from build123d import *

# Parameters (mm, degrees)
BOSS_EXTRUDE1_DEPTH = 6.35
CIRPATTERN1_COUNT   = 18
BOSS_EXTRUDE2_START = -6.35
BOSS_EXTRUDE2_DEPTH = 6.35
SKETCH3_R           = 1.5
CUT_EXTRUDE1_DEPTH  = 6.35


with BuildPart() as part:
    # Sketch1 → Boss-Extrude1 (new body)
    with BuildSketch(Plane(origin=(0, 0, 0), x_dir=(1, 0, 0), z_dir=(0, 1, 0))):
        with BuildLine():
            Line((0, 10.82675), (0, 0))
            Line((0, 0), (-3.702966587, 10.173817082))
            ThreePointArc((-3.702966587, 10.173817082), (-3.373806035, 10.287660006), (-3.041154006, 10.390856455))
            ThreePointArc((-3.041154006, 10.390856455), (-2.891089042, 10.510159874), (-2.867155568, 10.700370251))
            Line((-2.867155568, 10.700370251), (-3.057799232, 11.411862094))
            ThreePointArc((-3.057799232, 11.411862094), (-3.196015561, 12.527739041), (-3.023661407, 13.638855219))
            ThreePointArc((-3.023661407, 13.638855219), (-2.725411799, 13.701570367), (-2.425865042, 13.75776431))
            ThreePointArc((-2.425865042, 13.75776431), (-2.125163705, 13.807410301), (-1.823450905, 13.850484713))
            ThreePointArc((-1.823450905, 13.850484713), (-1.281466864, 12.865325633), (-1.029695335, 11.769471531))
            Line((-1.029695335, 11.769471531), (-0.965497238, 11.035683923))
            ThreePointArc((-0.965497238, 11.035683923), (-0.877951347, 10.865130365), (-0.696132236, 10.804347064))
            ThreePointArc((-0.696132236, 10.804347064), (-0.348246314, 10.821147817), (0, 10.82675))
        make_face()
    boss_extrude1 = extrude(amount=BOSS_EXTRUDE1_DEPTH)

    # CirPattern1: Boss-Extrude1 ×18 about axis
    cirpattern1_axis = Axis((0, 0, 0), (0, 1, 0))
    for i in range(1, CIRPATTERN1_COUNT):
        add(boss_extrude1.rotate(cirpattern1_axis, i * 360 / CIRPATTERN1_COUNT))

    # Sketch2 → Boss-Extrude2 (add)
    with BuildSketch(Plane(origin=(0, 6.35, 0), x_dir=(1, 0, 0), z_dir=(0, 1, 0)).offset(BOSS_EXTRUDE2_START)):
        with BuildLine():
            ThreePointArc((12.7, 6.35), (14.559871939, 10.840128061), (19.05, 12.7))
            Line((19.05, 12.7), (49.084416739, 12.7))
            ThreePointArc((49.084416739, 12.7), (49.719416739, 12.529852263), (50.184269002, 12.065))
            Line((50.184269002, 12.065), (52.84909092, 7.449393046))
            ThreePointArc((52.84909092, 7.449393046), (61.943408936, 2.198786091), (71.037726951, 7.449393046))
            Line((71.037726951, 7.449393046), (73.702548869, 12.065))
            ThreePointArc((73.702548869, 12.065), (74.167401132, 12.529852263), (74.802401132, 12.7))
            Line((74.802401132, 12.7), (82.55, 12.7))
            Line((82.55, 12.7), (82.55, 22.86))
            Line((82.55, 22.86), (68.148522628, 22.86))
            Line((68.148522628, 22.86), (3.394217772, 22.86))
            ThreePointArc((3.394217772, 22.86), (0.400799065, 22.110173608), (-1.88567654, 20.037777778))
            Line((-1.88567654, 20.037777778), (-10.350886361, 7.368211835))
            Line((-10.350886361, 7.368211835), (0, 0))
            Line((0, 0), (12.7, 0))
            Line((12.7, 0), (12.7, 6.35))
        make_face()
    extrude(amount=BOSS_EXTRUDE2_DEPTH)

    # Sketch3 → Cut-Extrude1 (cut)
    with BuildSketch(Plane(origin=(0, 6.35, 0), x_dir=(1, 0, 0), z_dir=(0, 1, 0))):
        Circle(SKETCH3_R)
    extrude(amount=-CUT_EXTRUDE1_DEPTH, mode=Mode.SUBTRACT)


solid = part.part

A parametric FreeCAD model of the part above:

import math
import FreeCAD as App
import Part
import Sketcher

V = App.Vector
Q = App.Units.Quantity

doc = App.newDocument("Part")
body = doc.addObject("PartDesign::Body", "Body")

sketch1 = body.newObject("Sketcher::SketchObject", "Sketch")
sketch1.AttachmentSupport = (doc.getObject("XZ_Plane"), [""])
sketch1.MapMode = "FlatFace"
sketch1.addGeometry(Part.LineSegment(V(0, 0, 0), V(0, -10.83, 0)), False)
sketch1.addGeometry(Part.ArcOfCircle(Part.Circle(V(0, 0, 0), V(0, 0, 1), 10.83), math.radians(-93.69), math.radians(-90)), False)
sketch1.addGeometry(Part.ArcOfCircle(Part.Circle(V(-0.71, -11.06, 0), V(0, 0, 1), 0.25), math.radians(86), math.radians(175)), False)
sketch1.addGeometry(Part.LineSegment(V(-0.97, -11.04, 0), V(-1.03, -11.77, 0)), False)
sketch1.addGeometry(Part.ArcOfCircle(Part.Circle(V(-5.08, -11.41, 0), V(0, 0, 1), 4.07), math.radians(-37), math.radians(-5)), False)
sketch1.addGeometry(Part.ArcOfCircle(Part.Circle(V(0, 0, 0), V(0, 0, 1), 13.97), math.radians(-100), math.radians(-97.5)), False)
sketch1.addGeometry(Part.ArcOfCircle(Part.Circle(V(0, 0, 0), V(0, 0, 1), 13.97), math.radians(-102.5), math.radians(-100)), False)
sketch1.addGeometry(Part.ArcOfCircle(Part.Circle(V(0.87, -12.47, 0), V(0, 0, 1), 4.07), math.radians(165), math.radians(197)), False)
sketch1.addGeometry(Part.LineSegment(V(-3.06, -11.41, 0), V(-2.87, -10.7, 0)), False)
sketch1.addGeometry(Part.ArcOfCircle(Part.Circle(V(-3.11, -10.63, 0), V(0, 0, 1), 0.25), math.radians(-15), math.radians(74)), False)
sketch1.addGeometry(Part.ArcOfCircle(Part.Circle(V(0, 0, 0), V(0, 0, 1), 10.83), math.radians(-110), math.radians(-106.31)), False)
sketch1.addGeometry(Part.LineSegment(V(-3.7, -10.17, 0), V(0, 0, 0)), False)
sketch1.addConstraint(Sketcher.Constraint("Coincident", 0, 2, 1, 2))
sketch1.addConstraint(Sketcher.Constraint("Tangent", 1, 1, 2, 1))
sketch1.addConstraint(Sketcher.Constraint("Tangent", 2, 2, 3, 1))
sketch1.addConstraint(Sketcher.Constraint("Tangent", 3, 2, 4, 2))
sketch1.addConstraint(Sketcher.Constraint("Coincident", 4, 1, 5, 2))
sketch1.addConstraint(Sketcher.Constraint("Tangent", 5, 1, 6, 2))
sketch1.addConstraint(Sketcher.Constraint("Coincident", 6, 1, 7, 2))
sketch1.addConstraint(Sketcher.Constraint("Tangent", 7, 1, 8, 1))
sketch1.addConstraint(Sketcher.Constraint("Tangent", 8, 2, 9, 1))
sketch1.addConstraint(Sketcher.Constraint("Tangent", 9, 2, 10, 2))
sketch1.addConstraint(Sketcher.Constraint("Coincident", 10, 1, 11, 1))
sketch1.addConstraint(Sketcher.Constraint("Coincident", 11, 2, 0, 1))
sketch1.addConstraint(Sketcher.Constraint("Vertical", 0))
sketch1.addConstraint(Sketcher.Constraint("Coincident", 1, 3, -1, 1))
sketch1.addConstraint(Sketcher.Constraint("Coincident", 5, 3, -1, 1))
sketch1.addConstraint(Sketcher.Constraint("Coincident", 10, 3, -1, 1))
sketch1.addConstraint(Sketcher.Constraint("Coincident", 11, 2, -1, 1))
sketch1.addConstraint(Sketcher.Constraint("Equal", 5, 6))
sketch1.addConstraint(Sketcher.Constraint("Equal", 4, 7))
sketch1.addConstraint(Sketcher.Constraint("Equal", 2, 9))
sketch1.addConstraint(Sketcher.Constraint("Equal", 1, 10))
sketch1.addConstraint(Sketcher.Constraint("Equal", 3, 8))
sketch1.addConstraint(Sketcher.Constraint("Radius", 2, Q("0.01 in")))
sketch1.addConstraint(Sketcher.Constraint("Radius", 5, Q("0.55 in")))
sketch1.addConstraint(Sketcher.Constraint("Angle", 3, Q("-95 deg")))
sketch1.addConstraint(Sketcher.Constraint("Angle", 8, Q("75 deg")))
sketch1.addConstraint(Sketcher.Constraint("Angle", 11, Q("70 deg")))
sketch1.addConstraint(Sketcher.Constraint("Radius", 1, Q("10.826749 mm")))
sketch1.addConstraint(Sketcher.Constraint("Radius", 4, Q("4.070369 mm")))
sketch1.addConstraint(Sketcher.Constraint("DistanceX", 9, 3, -1, 1, Q("3.112501 mm")))
sketch1.addConstraint(Sketcher.Constraint("DistanceX", 7, 1, -1, 1, Q("3.057799 mm")))
sketch1.addConstraint(Sketcher.Constraint("DistanceY", 4, 1, 2, 2, Q("2.814801 mm")))
sketch1.addConstraint(Sketcher.Constraint("DistanceX", 5, 1, 2, 3, Q("1.713401 mm")))
pad1 = body.newObject("PartDesign::Pad", "Pad")
pad1.Profile = sketch1
pad1.Length = Q("0.25 in")
pad1.Reversed = True
doc.recompute()

polarpattern = body.newObject("PartDesign::PolarPattern", "PolarPattern")
polarpattern.Originals = [pad1]
polarpattern.Axis = (doc.getObject("Y_Axis"), [""])
polarpattern.Angle = 360
polarpattern.Occurrences = 18
body.Tip = polarpattern

sketch2 = body.newObject("Sketcher::SketchObject", "Sketch001")
sketch2.AttachmentSupport = (doc.getObject("XZ_Plane"), [""])
sketch2.MapMode = "FlatFace"
sketch2.addGeometry(Part.ArcOfCircle(Part.Circle(V(19, -6.4, 0), V(0, 0, 1), 6.3), math.radians(180), math.radians(270)), False)
sketch2.addGeometry(Part.LineSegment(V(19.1, -12.7, 0), V(49.1, -12.7, 0)), False)
sketch2.addGeometry(Part.ArcOfCircle(Part.Circle(V(49.1, -11.4, 0), V(0, 0, 1), 1.3), math.radians(-90), math.radians(-30)), False)
sketch2.addGeometry(Part.LineSegment(V(50.2, -12.1, 0), V(52.8, -7.4, 0)), False)
sketch2.addGeometry(Part.ArcOfCircle(Part.Circle(V(61.9, -12.7, 0), V(0, 0, 1), 10.5), math.radians(30), math.radians(150)), False)
sketch2.addGeometry(Part.LineSegment(V(71, -7.4, 0), V(73.7, -12.1, 0)), False)
sketch2.addGeometry(Part.ArcOfCircle(Part.Circle(V(74.8, -11.4, 0), V(0, 0, 1), 1.3), math.radians(-150), math.radians(-90)), False)
sketch2.addGeometry(Part.LineSegment(V(74.8, -12.7, 0), V(82.5, -12.7, 0)), False)
sketch2.addGeometry(Part.LineSegment(V(82.5, -12.7, 0), V(82.5, -22.9, 0)), False)
sketch2.addGeometry(Part.LineSegment(V(82.5, -22.9, 0), V(3.4, -22.9, 0)), False)
sketch2.addGeometry(Part.ArcOfCircle(Part.Circle(V(3.4, -16.5, 0), V(0, 0, 1), 6.4), math.radians(-146), math.radians(-90)), False)
sketch2.addGeometry(Part.LineSegment(V(-1.9, -20, 0), V(-10.4, -7.4, 0)), False)
sketch2.addGeometry(Part.LineSegment(V(-10.4, -7.4, 0), V(0, 0, 0)), False)
sketch2.addGeometry(Part.LineSegment(V(0, 0, 0), V(12.7, 0, 0)), False)
sketch2.addGeometry(Part.LineSegment(V(12.7, 0, 0), V(12.7, -6.3, 0)), False)
sketch2.addConstraint(Sketcher.Constraint("Tangent", 0, 2, 1, 1))
sketch2.addConstraint(Sketcher.Constraint("Tangent", 1, 2, 2, 1))
sketch2.addConstraint(Sketcher.Constraint("Tangent", 2, 2, 3, 1))
sketch2.addConstraint(Sketcher.Constraint("Tangent", 3, 2, 4, 2))
sketch2.addConstraint(Sketcher.Constraint("Tangent", 4, 1, 5, 1))
sketch2.addConstraint(Sketcher.Constraint("Tangent", 5, 2, 6, 1))
sketch2.addConstraint(Sketcher.Constraint("Tangent", 6, 2, 7, 1))
sketch2.addConstraint(Sketcher.Constraint("Coincident", 7, 2, 8, 1))
sketch2.addConstraint(Sketcher.Constraint("Coincident", 8, 2, 9, 1))
sketch2.addConstraint(Sketcher.Constraint("Tangent", 9, 2, 10, 2))
sketch2.addConstraint(Sketcher.Constraint("Tangent", 10, 1, 11, 1))
sketch2.addConstraint(Sketcher.Constraint("Coincident", 11, 2, 12, 1))
sketch2.addConstraint(Sketcher.Constraint("Coincident", 12, 2, 13, 1))
sketch2.addConstraint(Sketcher.Constraint("Coincident", 13, 2, 14, 1))
sketch2.addConstraint(Sketcher.Constraint("Tangent", 14, 2, 0, 1))
sketch2.addConstraint(Sketcher.Constraint("Horizontal", 1))
sketch2.addConstraint(Sketcher.Constraint("Horizontal", 7))
sketch2.addConstraint(Sketcher.Constraint("Vertical", 8))
sketch2.addConstraint(Sketcher.Constraint("Horizontal", 9))
sketch2.addConstraint(Sketcher.Constraint("Horizontal", 13))
sketch2.addConstraint(Sketcher.Constraint("Vertical", 14))
sketch2.addConstraint(Sketcher.Constraint("Coincident", 12, 2, -1, 1))
sketch2.addConstraint(Sketcher.Constraint("Equal", 2, 6))
sketch2.addConstraint(Sketcher.Constraint("Equal", 0, 10))
sketch2.addConstraint(Sketcher.Constraint("Horizontal", 2, 3, 6, 3))
sketch2.addConstraint(Sketcher.Constraint("Horizontal", 4, 3, 0, 2))
sketch2.addConstraint(Sketcher.Constraint("Horizontal", 3, 2, 4, 1))
sketch2.addConstraint(Sketcher.Constraint("Radius", 0, Q("0.25 in")))
sketch2.addConstraint(Sketcher.Constraint("Radius", 2, Q("0.05 in")))
sketch2.addConstraint(Sketcher.Constraint("DistanceX", 13, 1, 13, 2, Q("0.5 in")))
sketch2.addConstraint(Sketcher.Constraint("DistanceY", 8, 2, 8, 1, Q("0.4 in")))
sketch2.addConstraint(Sketcher.Constraint("Angle", 3, Q("60 deg")))
sketch2.addConstraint(Sketcher.Constraint("DistanceY", 14, 2, 14, 1, Q("0.25 in")))
sketch2.addConstraint(Sketcher.Constraint("DistanceX", -1, 1, 7, 2, Q("3.25 in")))
sketch2.addConstraint(Sketcher.Constraint("DistanceX", 7, 1, 7, 2, Q("7.747599 mm")))
sketch2.addConstraint(Sketcher.Constraint("Radius", 4, Q("10.501214 mm")))
sketch2.addConstraint(Sketcher.Constraint("DistanceX", 10, 3, 2, 3, Q("45.690199 mm")))
sketch2.addConstraint(Sketcher.Constraint("DistanceY", 11, 2, -1, 1, Q("7.368212 mm")))
sketch2.addConstraint(Sketcher.Constraint("DistanceX", 11, 2, 10, 1, Q("8.46521 mm")))
pad2 = body.newObject("PartDesign::Pad", "Pad001")
pad2.Profile = sketch2
pad2.Length = Q("0.25 in")
pad2.Reversed = True

sketch3 = body.newObject("Sketcher::SketchObject", "Sketch002")
sketch3.AttachmentSupport = (doc.getObject("XZ_Plane"), [""])
sketch3.MapMode = "FlatFace"
sketch3.AttachmentOffset = App.Placement(V(0, 0, -0.25 * 25.4), App.Rotation())
sketch3.addGeometry(Part.Circle(V(0, 0, 0), V(0, 0, 1), 1.5), False)
sketch3.addConstraint(Sketcher.Constraint("Coincident", 0, 3, -1, 1))
sketch3.addConstraint(Sketcher.Constraint("Diameter", 0, Q("3 mm")))
pocket1 = body.newObject("PartDesign::Pocket", "Pocket")
pocket1.Profile = sketch3
pocket1.Length = Q("0.25 in")
pocket1.Reversed = True

doc.recompute()
